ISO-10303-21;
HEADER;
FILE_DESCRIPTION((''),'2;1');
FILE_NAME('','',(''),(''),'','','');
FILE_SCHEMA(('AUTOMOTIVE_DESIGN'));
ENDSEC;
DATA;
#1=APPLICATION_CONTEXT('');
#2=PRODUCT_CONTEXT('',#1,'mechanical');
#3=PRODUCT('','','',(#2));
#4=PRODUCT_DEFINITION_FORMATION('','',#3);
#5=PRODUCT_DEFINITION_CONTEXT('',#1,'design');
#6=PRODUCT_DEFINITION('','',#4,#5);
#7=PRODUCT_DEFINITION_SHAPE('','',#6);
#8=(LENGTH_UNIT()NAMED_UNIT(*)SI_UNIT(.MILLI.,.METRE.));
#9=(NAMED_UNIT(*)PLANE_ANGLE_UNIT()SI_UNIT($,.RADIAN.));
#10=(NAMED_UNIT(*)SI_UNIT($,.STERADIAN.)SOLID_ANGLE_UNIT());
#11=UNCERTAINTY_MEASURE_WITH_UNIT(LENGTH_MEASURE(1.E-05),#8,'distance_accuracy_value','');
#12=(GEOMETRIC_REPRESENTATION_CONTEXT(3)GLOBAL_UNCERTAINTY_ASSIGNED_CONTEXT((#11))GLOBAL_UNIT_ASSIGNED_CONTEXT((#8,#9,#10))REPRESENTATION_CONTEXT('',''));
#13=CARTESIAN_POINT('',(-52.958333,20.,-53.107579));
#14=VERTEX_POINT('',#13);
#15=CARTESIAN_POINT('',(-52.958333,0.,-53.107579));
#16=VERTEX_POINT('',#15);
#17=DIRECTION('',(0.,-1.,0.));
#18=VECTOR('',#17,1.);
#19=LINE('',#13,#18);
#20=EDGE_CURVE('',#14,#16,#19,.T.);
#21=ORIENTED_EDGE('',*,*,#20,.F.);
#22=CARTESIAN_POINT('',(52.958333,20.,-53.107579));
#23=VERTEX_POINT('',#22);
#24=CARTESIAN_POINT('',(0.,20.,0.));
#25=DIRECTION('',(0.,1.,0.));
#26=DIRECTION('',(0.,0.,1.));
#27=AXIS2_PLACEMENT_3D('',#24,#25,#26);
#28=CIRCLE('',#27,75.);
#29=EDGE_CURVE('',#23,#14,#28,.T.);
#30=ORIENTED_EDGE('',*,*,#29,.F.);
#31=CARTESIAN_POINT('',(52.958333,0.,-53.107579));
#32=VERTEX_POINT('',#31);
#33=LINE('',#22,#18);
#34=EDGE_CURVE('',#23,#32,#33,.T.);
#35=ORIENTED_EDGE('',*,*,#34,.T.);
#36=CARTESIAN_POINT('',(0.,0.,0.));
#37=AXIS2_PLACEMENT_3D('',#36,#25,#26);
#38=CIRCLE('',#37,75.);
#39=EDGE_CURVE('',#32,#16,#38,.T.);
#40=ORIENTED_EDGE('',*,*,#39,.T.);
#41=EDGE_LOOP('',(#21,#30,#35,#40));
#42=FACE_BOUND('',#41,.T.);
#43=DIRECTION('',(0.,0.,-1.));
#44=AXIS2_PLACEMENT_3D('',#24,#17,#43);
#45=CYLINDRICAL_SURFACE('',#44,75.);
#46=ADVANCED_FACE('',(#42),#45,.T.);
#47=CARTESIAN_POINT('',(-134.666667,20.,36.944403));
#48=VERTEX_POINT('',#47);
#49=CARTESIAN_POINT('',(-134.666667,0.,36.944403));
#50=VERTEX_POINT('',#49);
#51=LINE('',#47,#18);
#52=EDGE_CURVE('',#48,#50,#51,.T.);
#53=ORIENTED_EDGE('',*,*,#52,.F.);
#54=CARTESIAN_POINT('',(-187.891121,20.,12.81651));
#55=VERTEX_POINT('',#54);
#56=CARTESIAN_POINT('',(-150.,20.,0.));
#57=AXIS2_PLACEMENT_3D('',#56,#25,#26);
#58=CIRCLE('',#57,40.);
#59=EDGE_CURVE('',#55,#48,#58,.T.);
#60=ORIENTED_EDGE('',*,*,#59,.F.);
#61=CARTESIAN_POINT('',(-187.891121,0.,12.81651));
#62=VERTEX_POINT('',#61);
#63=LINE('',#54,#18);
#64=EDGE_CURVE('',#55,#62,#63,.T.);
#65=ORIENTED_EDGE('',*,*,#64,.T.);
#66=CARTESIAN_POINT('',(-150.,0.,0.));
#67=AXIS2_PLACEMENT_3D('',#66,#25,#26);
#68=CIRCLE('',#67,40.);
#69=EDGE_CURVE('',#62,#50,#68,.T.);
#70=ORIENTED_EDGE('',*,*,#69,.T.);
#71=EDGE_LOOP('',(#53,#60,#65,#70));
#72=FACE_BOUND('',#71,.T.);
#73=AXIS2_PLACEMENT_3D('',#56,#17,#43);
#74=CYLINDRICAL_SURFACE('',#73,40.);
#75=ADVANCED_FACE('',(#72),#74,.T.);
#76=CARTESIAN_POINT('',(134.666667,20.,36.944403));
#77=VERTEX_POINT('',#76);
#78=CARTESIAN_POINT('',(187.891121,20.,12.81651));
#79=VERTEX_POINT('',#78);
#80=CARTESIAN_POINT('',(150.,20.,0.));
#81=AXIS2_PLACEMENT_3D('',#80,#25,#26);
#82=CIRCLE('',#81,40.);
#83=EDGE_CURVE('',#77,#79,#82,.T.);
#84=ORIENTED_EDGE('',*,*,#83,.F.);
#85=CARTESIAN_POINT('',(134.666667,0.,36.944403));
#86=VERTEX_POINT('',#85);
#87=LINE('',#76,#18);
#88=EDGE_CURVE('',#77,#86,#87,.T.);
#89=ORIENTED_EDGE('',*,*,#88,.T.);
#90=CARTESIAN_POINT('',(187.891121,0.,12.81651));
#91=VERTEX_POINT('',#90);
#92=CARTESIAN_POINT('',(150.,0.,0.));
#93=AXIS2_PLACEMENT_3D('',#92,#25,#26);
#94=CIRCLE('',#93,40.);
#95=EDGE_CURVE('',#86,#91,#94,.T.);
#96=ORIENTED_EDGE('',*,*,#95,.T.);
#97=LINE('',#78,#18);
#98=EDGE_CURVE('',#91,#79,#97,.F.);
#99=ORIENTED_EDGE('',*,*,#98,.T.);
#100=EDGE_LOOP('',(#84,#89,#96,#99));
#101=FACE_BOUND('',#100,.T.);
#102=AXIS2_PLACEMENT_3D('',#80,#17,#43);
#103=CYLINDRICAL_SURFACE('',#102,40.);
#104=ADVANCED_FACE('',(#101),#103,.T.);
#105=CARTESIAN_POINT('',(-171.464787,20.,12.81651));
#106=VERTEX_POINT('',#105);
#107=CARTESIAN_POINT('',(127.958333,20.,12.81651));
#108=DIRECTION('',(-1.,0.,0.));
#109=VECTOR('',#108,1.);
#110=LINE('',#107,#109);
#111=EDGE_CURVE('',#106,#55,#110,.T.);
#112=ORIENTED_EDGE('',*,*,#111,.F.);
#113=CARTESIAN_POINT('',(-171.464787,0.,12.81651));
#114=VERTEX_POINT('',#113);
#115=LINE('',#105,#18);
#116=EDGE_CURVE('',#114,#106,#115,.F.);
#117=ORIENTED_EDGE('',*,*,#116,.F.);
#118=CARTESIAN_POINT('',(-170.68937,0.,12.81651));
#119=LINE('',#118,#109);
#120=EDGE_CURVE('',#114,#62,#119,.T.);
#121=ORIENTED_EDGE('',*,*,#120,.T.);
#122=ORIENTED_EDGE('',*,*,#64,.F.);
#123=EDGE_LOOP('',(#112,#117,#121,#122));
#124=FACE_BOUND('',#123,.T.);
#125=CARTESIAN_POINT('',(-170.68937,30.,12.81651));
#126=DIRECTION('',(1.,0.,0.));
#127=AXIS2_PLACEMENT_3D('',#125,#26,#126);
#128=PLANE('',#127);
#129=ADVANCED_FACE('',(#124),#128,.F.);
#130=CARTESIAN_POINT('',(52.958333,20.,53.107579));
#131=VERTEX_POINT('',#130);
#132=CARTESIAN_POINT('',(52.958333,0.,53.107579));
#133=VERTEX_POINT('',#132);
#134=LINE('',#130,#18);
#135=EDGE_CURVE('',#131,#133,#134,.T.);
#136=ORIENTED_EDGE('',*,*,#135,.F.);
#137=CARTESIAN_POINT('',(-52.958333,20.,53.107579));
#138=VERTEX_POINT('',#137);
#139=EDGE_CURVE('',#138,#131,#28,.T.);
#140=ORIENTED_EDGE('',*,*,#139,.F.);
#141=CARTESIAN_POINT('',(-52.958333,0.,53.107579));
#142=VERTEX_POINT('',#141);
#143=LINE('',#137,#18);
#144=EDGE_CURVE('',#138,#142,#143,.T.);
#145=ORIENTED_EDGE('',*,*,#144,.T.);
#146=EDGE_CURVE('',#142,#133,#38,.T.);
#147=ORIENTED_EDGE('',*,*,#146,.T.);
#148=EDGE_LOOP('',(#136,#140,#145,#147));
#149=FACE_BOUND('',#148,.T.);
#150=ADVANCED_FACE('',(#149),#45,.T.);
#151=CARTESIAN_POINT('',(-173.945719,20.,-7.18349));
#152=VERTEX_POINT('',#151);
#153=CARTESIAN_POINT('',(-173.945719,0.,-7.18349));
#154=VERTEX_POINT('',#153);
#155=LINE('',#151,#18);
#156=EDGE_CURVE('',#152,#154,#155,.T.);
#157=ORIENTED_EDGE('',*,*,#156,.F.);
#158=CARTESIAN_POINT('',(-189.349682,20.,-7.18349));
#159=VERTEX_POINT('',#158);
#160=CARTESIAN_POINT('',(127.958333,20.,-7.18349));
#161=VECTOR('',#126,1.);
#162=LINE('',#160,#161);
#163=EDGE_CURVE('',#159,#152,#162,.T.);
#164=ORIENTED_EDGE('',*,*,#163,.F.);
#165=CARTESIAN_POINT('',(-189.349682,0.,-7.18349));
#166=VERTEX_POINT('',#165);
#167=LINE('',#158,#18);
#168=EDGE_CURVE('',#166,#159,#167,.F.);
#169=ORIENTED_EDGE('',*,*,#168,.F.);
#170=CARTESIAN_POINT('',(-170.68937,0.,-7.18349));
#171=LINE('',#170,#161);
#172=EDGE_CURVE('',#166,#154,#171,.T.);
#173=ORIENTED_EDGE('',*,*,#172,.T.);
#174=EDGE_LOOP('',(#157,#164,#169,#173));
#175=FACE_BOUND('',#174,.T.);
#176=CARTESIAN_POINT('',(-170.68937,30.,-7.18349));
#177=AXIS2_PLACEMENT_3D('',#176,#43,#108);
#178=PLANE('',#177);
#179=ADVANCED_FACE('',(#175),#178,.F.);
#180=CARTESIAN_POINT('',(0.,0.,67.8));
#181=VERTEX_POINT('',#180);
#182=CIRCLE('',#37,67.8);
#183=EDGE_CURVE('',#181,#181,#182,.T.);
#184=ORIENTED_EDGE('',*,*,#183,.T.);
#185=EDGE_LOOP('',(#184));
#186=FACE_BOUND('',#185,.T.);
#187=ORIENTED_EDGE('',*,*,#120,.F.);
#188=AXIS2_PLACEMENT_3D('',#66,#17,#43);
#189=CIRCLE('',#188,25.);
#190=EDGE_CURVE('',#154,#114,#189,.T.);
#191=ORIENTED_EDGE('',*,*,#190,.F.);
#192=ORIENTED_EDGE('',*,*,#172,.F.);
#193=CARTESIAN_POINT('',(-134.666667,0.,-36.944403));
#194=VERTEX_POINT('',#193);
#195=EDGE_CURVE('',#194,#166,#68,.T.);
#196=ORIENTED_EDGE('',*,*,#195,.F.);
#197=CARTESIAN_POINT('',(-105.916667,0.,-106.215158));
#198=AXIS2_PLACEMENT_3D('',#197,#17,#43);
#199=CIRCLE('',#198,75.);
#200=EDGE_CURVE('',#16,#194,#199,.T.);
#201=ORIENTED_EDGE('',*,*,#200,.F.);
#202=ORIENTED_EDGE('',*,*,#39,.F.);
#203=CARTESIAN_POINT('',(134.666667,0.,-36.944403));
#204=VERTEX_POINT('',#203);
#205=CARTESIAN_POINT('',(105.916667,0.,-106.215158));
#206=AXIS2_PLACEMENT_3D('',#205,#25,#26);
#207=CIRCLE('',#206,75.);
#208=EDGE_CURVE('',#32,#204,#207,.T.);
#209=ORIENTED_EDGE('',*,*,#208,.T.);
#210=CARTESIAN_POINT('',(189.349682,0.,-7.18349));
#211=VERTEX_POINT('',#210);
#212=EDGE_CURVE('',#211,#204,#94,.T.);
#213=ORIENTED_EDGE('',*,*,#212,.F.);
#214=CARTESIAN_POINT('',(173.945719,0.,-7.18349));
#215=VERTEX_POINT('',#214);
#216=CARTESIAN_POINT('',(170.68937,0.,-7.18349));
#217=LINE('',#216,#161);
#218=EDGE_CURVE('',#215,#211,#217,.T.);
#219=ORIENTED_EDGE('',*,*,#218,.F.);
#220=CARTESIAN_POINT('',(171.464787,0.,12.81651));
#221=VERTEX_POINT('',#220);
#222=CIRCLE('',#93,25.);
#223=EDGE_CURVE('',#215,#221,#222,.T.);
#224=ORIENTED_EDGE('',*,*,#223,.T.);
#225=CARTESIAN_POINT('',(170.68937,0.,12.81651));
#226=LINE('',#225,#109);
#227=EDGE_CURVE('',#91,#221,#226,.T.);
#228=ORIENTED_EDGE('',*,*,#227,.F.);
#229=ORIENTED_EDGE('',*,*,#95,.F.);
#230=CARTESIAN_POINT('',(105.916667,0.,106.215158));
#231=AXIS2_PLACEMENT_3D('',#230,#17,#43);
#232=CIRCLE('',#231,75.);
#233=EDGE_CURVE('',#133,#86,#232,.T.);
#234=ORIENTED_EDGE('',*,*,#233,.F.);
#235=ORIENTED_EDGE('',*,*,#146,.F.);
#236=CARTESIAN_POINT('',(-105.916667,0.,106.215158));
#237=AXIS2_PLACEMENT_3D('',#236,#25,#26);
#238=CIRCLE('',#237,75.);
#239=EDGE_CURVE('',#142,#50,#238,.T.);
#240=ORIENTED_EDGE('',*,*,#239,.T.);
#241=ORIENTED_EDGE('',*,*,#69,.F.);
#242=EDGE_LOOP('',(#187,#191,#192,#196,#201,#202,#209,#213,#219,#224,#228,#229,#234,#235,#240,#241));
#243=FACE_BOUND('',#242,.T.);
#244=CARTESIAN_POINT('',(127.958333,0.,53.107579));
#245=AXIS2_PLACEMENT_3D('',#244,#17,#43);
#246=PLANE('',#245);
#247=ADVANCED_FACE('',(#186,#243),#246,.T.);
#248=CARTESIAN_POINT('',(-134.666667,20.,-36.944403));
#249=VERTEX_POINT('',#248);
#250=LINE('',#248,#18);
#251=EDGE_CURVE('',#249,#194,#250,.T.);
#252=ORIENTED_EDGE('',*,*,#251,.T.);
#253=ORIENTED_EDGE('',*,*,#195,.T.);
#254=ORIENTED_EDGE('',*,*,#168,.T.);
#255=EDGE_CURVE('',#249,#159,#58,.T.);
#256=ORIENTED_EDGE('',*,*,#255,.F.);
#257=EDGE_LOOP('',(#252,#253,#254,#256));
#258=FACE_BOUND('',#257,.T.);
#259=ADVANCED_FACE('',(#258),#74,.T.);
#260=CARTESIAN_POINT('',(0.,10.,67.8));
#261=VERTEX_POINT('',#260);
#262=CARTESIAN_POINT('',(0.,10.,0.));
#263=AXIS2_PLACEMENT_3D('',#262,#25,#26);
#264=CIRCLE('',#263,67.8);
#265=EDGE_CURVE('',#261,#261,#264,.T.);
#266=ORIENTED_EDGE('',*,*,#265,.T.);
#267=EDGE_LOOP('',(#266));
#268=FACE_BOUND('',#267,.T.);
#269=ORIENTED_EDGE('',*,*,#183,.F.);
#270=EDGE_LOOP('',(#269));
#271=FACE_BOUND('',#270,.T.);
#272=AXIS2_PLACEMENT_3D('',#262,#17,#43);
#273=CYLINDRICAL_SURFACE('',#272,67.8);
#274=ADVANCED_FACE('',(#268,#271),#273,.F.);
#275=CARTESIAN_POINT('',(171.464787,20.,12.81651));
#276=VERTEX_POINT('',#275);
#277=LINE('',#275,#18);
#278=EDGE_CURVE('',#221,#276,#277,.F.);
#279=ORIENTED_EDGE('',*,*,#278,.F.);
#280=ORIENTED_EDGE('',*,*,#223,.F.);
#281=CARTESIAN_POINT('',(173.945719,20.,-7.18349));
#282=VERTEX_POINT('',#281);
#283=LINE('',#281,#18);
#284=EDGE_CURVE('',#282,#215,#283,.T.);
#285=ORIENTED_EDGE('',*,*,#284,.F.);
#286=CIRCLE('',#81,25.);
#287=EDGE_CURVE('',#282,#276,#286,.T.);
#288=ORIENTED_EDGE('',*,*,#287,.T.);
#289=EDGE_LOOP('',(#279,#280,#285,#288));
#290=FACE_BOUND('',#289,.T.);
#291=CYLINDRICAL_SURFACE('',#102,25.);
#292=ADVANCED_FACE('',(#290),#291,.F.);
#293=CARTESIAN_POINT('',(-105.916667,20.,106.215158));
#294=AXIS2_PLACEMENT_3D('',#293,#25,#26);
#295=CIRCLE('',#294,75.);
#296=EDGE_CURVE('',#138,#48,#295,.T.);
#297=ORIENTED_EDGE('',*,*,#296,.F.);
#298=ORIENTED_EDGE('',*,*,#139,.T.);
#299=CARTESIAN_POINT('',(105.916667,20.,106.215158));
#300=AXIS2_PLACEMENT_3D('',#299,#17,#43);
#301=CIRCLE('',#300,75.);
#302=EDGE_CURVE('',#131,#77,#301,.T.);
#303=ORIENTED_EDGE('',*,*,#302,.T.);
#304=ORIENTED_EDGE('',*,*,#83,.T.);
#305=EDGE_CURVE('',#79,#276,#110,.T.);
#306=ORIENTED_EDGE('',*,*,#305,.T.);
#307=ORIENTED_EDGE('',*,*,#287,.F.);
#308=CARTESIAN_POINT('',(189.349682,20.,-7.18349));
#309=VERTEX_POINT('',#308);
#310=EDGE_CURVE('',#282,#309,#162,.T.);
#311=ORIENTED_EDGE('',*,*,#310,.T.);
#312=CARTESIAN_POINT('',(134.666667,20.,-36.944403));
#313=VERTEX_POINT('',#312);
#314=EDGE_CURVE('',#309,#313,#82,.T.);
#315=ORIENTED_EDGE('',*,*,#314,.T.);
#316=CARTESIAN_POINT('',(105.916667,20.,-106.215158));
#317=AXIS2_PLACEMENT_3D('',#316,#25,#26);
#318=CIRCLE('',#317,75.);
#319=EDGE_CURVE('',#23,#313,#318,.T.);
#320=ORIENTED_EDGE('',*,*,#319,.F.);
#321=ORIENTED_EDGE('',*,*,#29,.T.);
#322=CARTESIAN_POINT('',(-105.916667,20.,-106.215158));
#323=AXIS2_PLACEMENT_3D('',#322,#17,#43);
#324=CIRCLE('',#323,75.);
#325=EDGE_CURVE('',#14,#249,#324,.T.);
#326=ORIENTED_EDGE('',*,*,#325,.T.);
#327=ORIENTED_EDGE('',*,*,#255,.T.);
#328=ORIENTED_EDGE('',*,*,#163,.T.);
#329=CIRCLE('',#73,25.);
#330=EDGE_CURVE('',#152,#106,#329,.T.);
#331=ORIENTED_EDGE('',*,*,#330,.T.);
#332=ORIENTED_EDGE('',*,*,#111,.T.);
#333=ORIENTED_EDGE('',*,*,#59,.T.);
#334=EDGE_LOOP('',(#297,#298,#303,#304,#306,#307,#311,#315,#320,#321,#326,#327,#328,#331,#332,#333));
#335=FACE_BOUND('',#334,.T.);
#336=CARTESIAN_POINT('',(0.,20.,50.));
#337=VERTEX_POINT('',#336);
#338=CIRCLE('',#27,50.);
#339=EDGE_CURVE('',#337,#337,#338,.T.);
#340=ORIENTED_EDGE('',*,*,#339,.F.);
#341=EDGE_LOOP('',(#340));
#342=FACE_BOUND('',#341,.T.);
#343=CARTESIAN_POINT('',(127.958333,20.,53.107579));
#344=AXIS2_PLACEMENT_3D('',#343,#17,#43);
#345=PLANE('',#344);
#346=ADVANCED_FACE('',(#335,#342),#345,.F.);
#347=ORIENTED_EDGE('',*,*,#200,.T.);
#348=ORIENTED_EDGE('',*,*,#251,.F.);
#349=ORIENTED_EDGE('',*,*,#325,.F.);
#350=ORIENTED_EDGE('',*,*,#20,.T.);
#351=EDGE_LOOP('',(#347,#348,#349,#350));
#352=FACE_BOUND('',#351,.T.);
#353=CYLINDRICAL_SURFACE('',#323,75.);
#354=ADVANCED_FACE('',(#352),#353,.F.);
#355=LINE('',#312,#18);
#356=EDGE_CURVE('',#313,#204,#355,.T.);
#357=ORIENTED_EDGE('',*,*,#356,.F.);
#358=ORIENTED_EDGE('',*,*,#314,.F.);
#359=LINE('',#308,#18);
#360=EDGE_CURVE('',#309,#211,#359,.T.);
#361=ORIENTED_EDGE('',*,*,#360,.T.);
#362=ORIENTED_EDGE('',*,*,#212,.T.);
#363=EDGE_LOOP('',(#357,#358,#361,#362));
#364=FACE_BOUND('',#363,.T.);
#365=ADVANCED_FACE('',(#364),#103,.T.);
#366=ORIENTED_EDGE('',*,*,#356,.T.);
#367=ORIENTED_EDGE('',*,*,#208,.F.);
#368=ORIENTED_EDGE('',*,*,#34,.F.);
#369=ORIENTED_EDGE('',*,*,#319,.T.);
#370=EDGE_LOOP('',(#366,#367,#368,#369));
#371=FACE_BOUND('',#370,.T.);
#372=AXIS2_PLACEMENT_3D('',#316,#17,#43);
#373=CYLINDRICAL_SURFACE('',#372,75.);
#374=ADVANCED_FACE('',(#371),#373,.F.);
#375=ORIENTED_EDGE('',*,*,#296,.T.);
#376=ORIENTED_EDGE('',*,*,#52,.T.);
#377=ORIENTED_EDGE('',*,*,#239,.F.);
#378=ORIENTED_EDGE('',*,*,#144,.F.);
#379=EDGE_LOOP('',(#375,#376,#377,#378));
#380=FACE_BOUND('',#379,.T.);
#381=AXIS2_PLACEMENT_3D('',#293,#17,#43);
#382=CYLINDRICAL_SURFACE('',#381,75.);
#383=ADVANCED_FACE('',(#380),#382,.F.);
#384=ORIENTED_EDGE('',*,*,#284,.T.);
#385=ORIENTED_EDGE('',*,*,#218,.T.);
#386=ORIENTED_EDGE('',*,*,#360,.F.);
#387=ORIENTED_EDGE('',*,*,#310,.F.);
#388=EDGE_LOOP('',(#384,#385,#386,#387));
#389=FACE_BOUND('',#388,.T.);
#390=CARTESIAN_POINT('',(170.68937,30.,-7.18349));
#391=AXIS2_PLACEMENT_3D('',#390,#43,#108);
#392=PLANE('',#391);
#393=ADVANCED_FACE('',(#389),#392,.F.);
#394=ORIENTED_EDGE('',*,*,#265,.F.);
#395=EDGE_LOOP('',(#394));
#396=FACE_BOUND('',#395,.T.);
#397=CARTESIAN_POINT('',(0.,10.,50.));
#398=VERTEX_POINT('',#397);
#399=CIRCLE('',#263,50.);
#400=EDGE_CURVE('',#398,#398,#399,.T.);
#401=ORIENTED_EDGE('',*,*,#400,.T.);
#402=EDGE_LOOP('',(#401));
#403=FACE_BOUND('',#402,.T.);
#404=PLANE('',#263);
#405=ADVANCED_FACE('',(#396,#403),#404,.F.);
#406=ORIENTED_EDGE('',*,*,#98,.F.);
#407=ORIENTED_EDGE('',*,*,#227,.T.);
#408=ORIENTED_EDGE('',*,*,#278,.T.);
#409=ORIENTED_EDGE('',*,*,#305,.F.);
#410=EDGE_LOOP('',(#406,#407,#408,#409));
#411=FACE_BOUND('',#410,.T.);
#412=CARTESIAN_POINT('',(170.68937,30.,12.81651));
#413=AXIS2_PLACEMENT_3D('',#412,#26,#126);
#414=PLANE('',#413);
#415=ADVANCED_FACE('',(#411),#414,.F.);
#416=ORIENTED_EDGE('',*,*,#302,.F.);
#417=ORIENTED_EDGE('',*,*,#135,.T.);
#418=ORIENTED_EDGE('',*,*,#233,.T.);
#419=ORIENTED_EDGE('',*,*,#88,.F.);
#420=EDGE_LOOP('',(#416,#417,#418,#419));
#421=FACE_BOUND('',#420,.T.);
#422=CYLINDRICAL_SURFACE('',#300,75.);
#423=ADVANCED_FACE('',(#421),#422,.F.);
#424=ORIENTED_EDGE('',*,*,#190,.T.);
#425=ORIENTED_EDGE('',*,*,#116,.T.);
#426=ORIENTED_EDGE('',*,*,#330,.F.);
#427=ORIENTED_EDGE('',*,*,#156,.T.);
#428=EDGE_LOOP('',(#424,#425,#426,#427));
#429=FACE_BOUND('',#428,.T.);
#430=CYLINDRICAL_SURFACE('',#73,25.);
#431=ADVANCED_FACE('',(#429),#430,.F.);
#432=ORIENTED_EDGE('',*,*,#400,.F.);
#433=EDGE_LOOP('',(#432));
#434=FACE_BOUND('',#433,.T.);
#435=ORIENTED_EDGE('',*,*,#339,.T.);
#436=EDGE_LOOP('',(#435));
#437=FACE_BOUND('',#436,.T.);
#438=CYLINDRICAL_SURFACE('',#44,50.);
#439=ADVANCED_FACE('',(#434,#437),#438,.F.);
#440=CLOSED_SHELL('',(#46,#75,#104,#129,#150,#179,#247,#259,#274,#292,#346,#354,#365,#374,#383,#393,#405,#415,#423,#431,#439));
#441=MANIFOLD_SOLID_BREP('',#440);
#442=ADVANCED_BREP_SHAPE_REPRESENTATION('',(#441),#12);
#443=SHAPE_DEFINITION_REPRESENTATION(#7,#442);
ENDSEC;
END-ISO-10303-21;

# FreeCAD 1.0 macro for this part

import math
import FreeCAD as App
import Part
import Sketcher

V = App.Vector

doc = App.newDocument("Part")
body = doc.addObject("PartDesign::Body", "Body")

# Sketch on XZ plane
sketch1 = doc.addObject("Sketcher::SketchObject", "Sketch")
body.addObject(sketch1)
sketch1.AttachmentSupport = (doc.XZ_Plane, [""])
sketch1.MapMode = "FlatFace"
sketch1.addGeometry([
    Part.ArcOfCircle(Part.Circle(V(0, 0, 0), V(0, 0, 1), 75), math.radians(45), math.radians(135)),  # 0
    Part.ArcOfCircle(Part.Circle(V(106, 106, 0), V(0, 0, 1), 75), math.radians(-135), math.radians(-67)),  # 1
    Part.ArcOfCircle(Part.Circle(V(150, 0, 0), V(0, 0, 1), 40), math.radians(-113), math.radians(113)),  # 2
    Part.ArcOfCircle(Part.Circle(V(106, -106, 0), V(0, 0, 1), 75), math.radians(67), math.radians(135)),  # 3
    Part.ArcOfCircle(Part.Circle(V(0, 0, 0), V(0, 0, 1), 75), math.radians(-135), math.radians(-45)),  # 4
    Part.ArcOfCircle(Part.Circle(V(-106, -106, 0), V(0, 0, 1), 75), math.radians(45), math.radians(113)),  # 5
    Part.ArcOfCircle(Part.Circle(V(-150, 0, 0), V(0, 0, 1), 40), math.radians(67), math.radians(293)),  # 6
    Part.ArcOfCircle(Part.Circle(V(-106, 106, 0), V(0, 0, 1), 75), math.radians(-113), math.radians(-45)),  # 7
    Part.Circle(V(-150, 0, 0), V(0, 0, 1), 25),  # 8
    Part.Circle(V(0, 0, 0), V(0, 0, 1), 50),  # 9
    Part.Circle(V(150, 0, 0), V(0, 0, 1), 25),  # 10
], False)
sketch1.addConstraint([
    Sketcher.Constraint("Tangent", 0, 1, 1, 1),
    Sketcher.Constraint("Tangent", 1, 2, 2, 2),
    Sketcher.Constraint("Tangent", 2, 1, 3, 1),
    Sketcher.Constraint("Tangent", 3, 2, 4, 2),
    Sketcher.Constraint("Tangent", 4, 1, 5, 1),
    Sketcher.Constraint("Tangent", 5, 2, 6, 2),
    Sketcher.Constraint("Tangent", 6, 1, 7, 1),
    Sketcher.Constraint("Tangent", 7, 2, 0, 2),
    Sketcher.Constraint("Coincident", 0, 3, -1, 1),
    Sketcher.Constraint("Coincident", 4, 3, -1, 1),
    Sketcher.Constraint("Coincident", 9, 3, -1, 1),
    Sketcher.Constraint("Coincident", 8, 3, 6, 3),
    Sketcher.Constraint("Coincident", 10, 3, 2, 3),
    Sketcher.Constraint("Equal", 0, 1),
    Sketcher.Constraint("Equal", 1, 3),
    Sketcher.Constraint("Equal", 3, 4),
    Sketcher.Constraint("Equal", 4, 5),
    Sketcher.Constraint("Equal", 2, 6),
    Sketcher.Constraint("Equal", 5, 7),
    Sketcher.Constraint("Equal", 8, 10),
    Sketcher.Constraint("Symmetric", 2, 3, 6, 3, -1, 1),
    Sketcher.Constraint("PointOnObject", 2, 3, -1),
    Sketcher.Constraint("Diameter", 8, 50.0),
    Sketcher.Constraint("Diameter", 9, 100.0),
    Sketcher.Constraint("Radius", 0, 75.0),
    Sketcher.Constraint("Radius", 2, 40.0),
    Sketcher.Constraint("DistanceX", -1, 1, 2, 3, 150.0),
])
pad1 = doc.addObject("PartDesign::Pad", "Pad")
body.addObject(pad1)
pad1.Profile = sketch1
pad1.Length = 20
pad1.Reversed = True

# Sketch on XZ plane
sketch2 = doc.addObject("Sketcher::SketchObject", "Sketch001")
body.addObject(sketch2)
sketch2.AttachmentSupport = (doc.XZ_Plane, [""])
sketch2.MapMode = "FlatFace"
sketch2.addGeometry(Part.Circle(V(0, 0, 0), V(0, 0, 1), 68), False)
sketch2.addConstraint([
    Sketcher.Constraint("Coincident", 0, 3, -1, 1),
    Sketcher.Constraint("Diameter", 0, 135.6),
])
pocket1 = doc.addObject("PartDesign::Pocket", "Pocket")
body.addObject(pocket1)
pocket1.Profile = sketch2
pocket1.Length = 10

# Sketch on XZ plane
sketch3 = doc.addObject("Sketcher::SketchObject", "Sketch002")
body.addObject(sketch3)
sketch3.AttachmentSupport = (doc.XZ_Plane, [""])
sketch3.MapMode = "FlatFace"
sketch3.addGeometry([
    Part.LineSegment(V(171, 13, 0), V(171, -7, 0)),  # 0
    Part.LineSegment(V(171, -7, 0), V(192, -7, 0)),  # 1
    Part.LineSegment(V(192, -7, 0), V(192, 13, 0)),  # 2
    Part.LineSegment(V(192, 13, 0), V(171, 13, 0)),  # 3
    Part.LineSegment(V(-192, 13, 0), V(-192, -7, 0)),  # 4
    Part.LineSegment(V(-192, -7, 0), V(-171, -7, 0)),  # 5
    Part.LineSegment(V(-171, -7, 0), V(-171, 13, 0)),  # 6
    Part.LineSegment(V(-171, 13, 0), V(-192, 13, 0)),  # 7
], False)
sketch3.addConstraint([
    Sketcher.Constraint("Coincident", 0, 2, 1, 1),
    Sketcher.Constraint("Coincident", 1, 2, 2, 1),
    Sketcher.Constraint("Coincident", 2, 2, 3, 1),
    Sketcher.Constraint("Coincident", 3, 2, 0, 1),
    Sketcher.Constraint("Coincident", 4, 2, 5, 1),
    Sketcher.Constraint("Coincident", 5, 2, 6, 1),
    Sketcher.Constraint("Coincident", 6, 2, 7, 1),
    Sketcher.Constraint("Coincident", 7, 2, 4, 1),
    Sketcher.Constraint("Vertical", 0),
    Sketcher.Constraint("Horizontal", 1),
    Sketcher.Constraint("Vertical", 2),
    Sketcher.Constraint("Horizontal", 3),
    Sketcher.Constraint("Vertical", 4),
    Sketcher.Constraint("Horizontal", 5),
    Sketcher.Constraint("Vertical", 6),
    Sketcher.Constraint("Horizontal", 7),
    Sketcher.Constraint("Symmetric", 1, 2, 4, 2, -2),
    Sketcher.Constraint("Symmetric", 3, 2, 6, 2, -2),
    Sketcher.Constraint("DistanceY", 0, 2, 0, 1, 20.0),
    Sketcher.Constraint("DistanceX", 1, 1, 1, 2, 21.167456),
    Sketcher.Constraint("DistanceX", -1, 1, 0, 2, 170.68937),
    Sketcher.Constraint("DistanceY", 0, 2, -1, 1, 7.18349),
])
pocket2 = doc.addObject("PartDesign::Pocket", "Pocket001")
body.addObject(pocket2)
pocket2.Profile = sketch3
pocket2.Length = 30

doc.recompute()
